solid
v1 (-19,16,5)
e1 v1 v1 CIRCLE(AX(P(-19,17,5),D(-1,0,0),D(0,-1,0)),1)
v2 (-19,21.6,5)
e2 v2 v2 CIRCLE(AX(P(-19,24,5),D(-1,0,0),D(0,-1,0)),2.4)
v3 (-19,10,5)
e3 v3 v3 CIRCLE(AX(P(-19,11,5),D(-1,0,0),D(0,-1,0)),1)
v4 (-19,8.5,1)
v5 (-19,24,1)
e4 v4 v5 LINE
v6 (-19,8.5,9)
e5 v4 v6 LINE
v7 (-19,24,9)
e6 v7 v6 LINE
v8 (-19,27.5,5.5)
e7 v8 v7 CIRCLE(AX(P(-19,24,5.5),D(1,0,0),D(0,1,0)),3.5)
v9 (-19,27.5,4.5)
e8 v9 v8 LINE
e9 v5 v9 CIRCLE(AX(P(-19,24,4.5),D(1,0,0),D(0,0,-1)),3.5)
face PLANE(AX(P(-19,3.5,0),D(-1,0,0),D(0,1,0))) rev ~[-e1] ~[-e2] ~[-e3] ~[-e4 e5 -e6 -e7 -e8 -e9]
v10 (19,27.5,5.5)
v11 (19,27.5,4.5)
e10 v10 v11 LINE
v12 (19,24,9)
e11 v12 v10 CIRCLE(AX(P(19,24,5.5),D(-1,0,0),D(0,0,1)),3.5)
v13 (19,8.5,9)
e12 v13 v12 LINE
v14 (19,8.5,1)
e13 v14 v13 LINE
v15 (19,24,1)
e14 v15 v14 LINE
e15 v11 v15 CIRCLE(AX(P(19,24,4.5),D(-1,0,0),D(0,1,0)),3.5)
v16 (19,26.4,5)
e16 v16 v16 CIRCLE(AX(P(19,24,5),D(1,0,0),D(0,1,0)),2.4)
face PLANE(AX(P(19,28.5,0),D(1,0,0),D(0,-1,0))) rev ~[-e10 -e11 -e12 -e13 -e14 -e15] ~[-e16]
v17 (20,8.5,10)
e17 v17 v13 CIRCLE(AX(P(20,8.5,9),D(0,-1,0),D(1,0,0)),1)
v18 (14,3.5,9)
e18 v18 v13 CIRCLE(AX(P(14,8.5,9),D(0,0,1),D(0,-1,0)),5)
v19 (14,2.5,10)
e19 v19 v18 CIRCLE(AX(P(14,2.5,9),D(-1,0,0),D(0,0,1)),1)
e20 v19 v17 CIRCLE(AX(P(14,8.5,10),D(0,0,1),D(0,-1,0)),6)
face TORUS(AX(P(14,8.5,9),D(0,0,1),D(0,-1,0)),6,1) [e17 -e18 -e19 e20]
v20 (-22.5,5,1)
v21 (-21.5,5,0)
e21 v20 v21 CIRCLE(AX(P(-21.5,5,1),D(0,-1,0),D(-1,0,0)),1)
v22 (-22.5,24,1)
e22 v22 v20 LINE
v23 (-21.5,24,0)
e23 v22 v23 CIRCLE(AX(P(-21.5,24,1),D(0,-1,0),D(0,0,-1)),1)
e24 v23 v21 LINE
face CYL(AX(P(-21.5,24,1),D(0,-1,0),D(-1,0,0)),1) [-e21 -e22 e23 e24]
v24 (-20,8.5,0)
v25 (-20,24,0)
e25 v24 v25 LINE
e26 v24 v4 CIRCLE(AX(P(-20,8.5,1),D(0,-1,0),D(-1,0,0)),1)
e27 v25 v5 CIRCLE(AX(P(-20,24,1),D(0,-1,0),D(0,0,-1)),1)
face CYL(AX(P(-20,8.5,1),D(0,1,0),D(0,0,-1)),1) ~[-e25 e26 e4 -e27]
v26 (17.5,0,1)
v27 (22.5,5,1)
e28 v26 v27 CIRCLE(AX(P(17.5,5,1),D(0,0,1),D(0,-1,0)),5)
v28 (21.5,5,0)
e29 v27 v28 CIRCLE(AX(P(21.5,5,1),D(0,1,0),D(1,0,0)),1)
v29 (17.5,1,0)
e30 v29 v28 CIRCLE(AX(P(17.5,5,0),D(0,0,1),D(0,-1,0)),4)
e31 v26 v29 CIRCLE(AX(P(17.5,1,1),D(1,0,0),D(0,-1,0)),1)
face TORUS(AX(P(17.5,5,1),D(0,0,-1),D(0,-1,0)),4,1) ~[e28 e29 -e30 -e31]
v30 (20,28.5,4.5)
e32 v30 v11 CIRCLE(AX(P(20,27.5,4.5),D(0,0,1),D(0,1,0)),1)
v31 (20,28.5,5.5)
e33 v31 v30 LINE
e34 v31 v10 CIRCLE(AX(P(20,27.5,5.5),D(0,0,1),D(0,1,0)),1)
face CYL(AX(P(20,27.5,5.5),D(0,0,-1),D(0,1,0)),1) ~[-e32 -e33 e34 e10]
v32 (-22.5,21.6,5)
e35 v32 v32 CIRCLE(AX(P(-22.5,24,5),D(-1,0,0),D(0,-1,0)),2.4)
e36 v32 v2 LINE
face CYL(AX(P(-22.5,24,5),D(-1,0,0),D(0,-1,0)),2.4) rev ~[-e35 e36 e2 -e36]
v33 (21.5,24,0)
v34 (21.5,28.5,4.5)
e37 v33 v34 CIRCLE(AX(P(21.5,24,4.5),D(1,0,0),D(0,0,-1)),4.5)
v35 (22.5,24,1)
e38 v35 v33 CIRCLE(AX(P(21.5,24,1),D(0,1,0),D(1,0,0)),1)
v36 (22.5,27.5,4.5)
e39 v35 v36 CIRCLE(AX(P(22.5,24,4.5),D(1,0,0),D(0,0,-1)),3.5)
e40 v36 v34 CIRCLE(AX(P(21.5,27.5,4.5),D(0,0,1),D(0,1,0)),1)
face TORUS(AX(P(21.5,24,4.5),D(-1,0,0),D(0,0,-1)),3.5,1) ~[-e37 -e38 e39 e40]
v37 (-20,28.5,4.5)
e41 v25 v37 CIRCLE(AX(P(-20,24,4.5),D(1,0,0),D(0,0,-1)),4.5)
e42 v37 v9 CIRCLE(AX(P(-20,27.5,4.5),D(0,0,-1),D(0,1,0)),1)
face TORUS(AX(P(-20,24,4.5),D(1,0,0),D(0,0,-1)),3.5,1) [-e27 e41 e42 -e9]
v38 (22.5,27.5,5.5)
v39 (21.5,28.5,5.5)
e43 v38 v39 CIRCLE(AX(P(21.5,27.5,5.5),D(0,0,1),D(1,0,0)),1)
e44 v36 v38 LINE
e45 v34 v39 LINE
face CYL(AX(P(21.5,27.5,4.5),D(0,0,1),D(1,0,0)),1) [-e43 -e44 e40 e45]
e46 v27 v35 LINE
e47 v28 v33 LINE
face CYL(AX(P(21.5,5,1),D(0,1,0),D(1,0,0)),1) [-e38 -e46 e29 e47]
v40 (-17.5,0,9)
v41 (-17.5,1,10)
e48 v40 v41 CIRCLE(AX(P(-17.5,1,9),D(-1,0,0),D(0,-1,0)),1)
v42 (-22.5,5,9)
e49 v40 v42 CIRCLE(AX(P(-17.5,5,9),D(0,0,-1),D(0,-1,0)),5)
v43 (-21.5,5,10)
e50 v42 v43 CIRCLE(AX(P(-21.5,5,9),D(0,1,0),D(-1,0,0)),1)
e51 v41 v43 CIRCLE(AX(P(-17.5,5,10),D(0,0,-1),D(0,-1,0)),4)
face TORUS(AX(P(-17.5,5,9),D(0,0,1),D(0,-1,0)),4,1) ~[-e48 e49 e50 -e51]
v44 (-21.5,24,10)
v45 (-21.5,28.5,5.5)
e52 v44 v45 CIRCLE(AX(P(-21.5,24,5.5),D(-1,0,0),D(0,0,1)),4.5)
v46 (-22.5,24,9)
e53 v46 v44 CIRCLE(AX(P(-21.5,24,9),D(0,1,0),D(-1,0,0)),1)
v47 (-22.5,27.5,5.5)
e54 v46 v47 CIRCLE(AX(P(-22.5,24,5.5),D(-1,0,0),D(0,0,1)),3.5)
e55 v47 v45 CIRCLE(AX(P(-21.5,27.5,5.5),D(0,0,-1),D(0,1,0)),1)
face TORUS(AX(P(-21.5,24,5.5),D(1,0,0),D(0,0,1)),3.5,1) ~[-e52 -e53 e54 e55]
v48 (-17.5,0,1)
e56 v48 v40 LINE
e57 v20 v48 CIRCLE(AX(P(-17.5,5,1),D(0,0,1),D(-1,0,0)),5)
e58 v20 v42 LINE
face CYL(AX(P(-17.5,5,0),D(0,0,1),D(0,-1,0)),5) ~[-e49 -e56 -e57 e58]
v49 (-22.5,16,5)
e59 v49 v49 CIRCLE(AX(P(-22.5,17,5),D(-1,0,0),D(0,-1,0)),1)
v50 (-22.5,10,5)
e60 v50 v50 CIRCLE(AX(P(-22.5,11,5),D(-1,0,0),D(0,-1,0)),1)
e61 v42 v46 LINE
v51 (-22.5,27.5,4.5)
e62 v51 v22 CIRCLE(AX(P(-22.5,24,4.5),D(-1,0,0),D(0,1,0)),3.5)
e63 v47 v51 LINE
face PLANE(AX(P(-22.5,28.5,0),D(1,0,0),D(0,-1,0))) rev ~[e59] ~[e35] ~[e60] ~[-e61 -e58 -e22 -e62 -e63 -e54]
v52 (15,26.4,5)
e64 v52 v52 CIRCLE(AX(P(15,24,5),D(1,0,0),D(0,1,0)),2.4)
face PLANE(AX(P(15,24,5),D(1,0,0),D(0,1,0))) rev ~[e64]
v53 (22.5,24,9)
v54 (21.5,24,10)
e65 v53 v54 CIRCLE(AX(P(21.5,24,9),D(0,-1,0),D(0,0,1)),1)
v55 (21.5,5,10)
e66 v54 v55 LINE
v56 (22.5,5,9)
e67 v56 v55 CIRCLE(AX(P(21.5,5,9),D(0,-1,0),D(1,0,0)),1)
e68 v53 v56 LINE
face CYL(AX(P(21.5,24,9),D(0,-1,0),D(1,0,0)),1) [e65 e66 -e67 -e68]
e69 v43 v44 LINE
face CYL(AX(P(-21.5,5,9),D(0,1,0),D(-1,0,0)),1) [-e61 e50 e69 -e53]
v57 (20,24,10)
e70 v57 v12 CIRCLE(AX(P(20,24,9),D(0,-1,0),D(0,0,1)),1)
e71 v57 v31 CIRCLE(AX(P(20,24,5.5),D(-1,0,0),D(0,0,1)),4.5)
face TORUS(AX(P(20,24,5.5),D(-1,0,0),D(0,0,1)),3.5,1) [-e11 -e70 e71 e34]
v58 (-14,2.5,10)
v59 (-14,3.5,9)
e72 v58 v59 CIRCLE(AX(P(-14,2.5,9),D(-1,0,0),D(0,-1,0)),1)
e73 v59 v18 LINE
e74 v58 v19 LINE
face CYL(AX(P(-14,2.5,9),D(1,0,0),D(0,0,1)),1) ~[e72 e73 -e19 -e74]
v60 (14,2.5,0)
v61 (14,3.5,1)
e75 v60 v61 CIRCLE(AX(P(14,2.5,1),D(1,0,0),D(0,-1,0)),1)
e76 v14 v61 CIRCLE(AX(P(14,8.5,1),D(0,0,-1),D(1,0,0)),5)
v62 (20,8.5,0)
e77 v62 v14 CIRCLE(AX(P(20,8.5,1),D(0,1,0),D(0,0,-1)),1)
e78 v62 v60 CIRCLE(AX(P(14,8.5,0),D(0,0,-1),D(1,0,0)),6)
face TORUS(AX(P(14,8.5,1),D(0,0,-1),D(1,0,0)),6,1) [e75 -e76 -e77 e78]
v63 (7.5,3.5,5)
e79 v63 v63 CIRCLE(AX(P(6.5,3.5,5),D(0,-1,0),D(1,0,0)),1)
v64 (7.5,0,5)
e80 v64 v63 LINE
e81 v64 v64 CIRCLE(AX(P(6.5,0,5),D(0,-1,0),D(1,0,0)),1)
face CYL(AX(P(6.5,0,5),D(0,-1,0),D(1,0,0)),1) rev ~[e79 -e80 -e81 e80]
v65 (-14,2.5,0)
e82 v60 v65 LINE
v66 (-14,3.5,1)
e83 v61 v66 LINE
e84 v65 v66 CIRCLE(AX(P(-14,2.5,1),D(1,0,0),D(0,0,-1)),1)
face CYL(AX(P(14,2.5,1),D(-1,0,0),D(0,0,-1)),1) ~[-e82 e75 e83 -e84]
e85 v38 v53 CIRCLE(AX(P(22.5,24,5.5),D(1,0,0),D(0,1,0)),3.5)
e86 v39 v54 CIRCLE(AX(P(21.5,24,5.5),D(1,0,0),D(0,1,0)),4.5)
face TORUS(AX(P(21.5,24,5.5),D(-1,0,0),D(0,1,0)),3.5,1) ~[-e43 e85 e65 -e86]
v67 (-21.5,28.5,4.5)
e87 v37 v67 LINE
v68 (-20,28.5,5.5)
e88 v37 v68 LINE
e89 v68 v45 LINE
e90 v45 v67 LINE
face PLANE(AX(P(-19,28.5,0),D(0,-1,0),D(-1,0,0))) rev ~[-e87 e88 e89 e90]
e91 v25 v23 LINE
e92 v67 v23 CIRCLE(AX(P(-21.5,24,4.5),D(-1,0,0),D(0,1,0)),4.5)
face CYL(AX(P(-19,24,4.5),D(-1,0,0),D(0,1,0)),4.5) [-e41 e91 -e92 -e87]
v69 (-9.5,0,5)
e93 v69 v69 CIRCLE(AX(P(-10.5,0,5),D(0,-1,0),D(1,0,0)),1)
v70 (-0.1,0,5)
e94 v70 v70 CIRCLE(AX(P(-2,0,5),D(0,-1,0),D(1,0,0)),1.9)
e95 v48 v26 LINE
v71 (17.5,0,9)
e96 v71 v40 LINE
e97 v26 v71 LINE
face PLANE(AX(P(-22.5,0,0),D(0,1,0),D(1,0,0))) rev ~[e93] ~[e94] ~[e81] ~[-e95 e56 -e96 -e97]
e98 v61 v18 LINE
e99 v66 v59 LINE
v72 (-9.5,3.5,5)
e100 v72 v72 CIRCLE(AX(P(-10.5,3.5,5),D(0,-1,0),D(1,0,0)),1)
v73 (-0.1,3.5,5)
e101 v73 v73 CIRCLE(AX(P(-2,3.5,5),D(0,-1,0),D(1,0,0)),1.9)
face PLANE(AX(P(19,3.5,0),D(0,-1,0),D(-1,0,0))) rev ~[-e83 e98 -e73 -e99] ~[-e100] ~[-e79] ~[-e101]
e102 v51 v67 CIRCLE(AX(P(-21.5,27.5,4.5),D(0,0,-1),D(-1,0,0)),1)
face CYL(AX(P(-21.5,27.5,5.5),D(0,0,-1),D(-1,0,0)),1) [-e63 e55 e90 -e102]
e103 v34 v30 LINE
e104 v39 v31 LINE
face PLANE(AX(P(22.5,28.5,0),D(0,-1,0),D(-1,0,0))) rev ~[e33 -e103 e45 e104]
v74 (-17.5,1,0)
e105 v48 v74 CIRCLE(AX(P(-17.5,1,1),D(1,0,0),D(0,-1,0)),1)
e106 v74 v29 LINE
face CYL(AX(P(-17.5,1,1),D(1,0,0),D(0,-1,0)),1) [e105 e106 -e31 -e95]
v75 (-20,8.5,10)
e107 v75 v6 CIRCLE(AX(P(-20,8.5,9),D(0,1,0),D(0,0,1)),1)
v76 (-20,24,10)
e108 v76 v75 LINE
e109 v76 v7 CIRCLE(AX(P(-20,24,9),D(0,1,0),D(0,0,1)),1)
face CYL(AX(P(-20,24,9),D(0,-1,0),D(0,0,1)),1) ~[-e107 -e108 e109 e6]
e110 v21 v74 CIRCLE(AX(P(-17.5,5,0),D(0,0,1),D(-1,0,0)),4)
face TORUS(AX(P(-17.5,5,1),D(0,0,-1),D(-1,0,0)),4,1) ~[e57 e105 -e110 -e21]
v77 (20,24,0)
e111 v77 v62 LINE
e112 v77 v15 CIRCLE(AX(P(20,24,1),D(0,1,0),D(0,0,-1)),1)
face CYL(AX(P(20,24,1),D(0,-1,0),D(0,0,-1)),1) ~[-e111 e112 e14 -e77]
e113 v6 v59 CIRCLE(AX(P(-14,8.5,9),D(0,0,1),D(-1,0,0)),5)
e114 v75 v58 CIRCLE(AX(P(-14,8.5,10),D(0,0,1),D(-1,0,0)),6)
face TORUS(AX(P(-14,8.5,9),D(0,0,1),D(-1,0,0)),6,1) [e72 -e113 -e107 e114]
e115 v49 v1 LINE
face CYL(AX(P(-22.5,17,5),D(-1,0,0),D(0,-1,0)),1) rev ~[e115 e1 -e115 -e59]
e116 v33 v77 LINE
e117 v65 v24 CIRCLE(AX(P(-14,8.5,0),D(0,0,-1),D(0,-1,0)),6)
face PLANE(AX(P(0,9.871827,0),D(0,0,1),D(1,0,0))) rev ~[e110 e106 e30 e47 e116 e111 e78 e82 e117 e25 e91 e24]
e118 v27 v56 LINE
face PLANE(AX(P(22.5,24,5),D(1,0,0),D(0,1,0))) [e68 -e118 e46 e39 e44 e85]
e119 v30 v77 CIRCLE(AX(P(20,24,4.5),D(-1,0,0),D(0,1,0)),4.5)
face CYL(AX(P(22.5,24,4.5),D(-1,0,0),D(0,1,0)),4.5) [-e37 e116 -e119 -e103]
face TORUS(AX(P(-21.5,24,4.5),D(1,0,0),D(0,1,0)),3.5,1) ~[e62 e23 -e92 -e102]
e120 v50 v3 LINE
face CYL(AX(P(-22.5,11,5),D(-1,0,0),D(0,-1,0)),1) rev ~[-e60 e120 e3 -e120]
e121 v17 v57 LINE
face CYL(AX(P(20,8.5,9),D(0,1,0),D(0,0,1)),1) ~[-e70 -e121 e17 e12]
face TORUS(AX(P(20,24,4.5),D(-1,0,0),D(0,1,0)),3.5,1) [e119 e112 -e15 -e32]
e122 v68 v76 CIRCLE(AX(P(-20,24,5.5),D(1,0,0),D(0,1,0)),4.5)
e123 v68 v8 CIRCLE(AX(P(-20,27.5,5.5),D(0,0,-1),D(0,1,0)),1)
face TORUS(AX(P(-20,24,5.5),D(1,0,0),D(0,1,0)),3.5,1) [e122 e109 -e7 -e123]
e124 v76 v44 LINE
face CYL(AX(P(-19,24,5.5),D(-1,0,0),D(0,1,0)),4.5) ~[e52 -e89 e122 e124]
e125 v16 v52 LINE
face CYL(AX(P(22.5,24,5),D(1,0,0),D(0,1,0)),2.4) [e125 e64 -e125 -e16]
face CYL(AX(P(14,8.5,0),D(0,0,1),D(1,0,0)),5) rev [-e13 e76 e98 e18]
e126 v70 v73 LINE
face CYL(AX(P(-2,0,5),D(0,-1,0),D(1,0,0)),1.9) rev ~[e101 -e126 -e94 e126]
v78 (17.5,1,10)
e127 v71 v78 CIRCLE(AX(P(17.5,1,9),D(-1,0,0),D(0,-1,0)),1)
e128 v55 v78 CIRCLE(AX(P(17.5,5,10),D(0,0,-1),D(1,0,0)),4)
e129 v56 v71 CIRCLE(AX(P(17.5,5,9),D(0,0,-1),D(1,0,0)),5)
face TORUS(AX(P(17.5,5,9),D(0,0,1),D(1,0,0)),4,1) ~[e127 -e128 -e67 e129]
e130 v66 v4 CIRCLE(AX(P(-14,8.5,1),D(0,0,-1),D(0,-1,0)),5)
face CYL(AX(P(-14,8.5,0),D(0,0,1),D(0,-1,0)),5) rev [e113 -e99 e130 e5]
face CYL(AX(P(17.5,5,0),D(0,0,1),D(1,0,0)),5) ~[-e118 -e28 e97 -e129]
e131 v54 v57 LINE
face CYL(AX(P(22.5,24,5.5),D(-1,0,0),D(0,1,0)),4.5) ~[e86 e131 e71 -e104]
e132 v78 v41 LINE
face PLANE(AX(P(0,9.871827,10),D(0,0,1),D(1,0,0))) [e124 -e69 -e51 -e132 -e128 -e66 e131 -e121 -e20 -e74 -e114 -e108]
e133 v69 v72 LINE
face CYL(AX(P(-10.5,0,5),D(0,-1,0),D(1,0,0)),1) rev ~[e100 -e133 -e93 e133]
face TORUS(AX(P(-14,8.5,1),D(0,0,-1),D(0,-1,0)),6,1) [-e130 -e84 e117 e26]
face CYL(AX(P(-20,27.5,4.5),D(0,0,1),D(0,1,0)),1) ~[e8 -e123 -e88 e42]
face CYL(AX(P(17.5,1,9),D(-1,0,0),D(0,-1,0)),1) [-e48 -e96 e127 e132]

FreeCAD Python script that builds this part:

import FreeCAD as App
import Part
import Sketcher
from FreeCAD import Vector
Q = App.Units.Quantity


def edges_at(feature, points):
    """Names of the edges that pass closest to the given points."""
    edges = feature.Shape.Edges
    near = lambda p: min(range(len(edges)), key=lambda i: edges[i].distToShape(Part.Vertex(*p))[0])
    return sorted({f"Edge{near(p) + 1}" for p in points})


def add_polygon(sketch, points):
    """Adds a closed chain of lines whose ends are joined by coincident constraints."""
    first, n = sketch.GeometryCount, len(points)
    for a, b in zip(points, points[1:] + points[:1]):
        sketch.addGeometry(Part.LineSegment(App.Vector(*a, 0), App.Vector(*b, 0)), False)
    for i in range(n):
        sketch.addConstraint(Sketcher.Constraint("Coincident", first + i, 2, first + (i + 1) % n, 1))

doc = App.newDocument("Part")
body = doc.addObject("PartDesign::Body", "Body")

sketch1 = body.newObject("Sketcher::SketchObject", "Sketch")
sketch1.AttachmentSupport = (doc.getObject("XY_Plane"), [""])
sketch1.MapMode = "FlatFace"
add_polygon(sketch1, [(-22.5, 0), (22.5, 0), (22.5, 28.5), (19, 28.5), (19, 3.5), (-19, 3.5), (-19, 28.5), (-22.5, 28.5)])
sketch1.addConstraint(Sketcher.Constraint("Horizontal", 0))
sketch1.addConstraint(Sketcher.Constraint("Vertical", 1))
sketch1.addConstraint(Sketcher.Constraint("Horizontal", 2))
sketch1.addConstraint(Sketcher.Constraint("Vertical", 3))
sketch1.addConstraint(Sketcher.Constraint("Horizontal", 4))
sketch1.addConstraint(Sketcher.Constraint("Vertical", 5))
sketch1.addConstraint(Sketcher.Constraint("Horizontal", 6))
sketch1.addConstraint(Sketcher.Constraint("Vertical", 7))
sketch1.addConstraint(Sketcher.Constraint("Symmetric", 0, 2, 7, 2, -1, 1))
sketch1.addConstraint(Sketcher.Constraint("Symmetric", 2, 2, 5, 2, -2))
sketch1.addConstraint(Sketcher.Constraint("DistanceX", 0, 1, 0, 2, Q("45 mm")))
sketch1.addConstraint(Sketcher.Constraint("DistanceX", 4, 2, 4, 1, Q("38 mm")))
sketch1.addConstraint(Sketcher.Constraint("DistanceY", 3, 2, 3, 1, Q("25 mm")))
sketch1.addConstraint(Sketcher.Constraint("DistanceY", 1, 1, 1, 2, Q("28.5 mm")))
pad1 = body.newObject("PartDesign::Pad", "Pad")
pad1.Profile = sketch1
pad1.Length = 10
doc.recompute()

fillet = body.newObject("PartDesign::Fillet", "Fillet")
fillet.Base = (pad1, edges_at(pad1, [
    (-20.75, 28.5, 10),
    (-20.75, 28.5, 0),
    (20.75, 28.5, 10),
    (20.75, 28.5, 0),
]))
fillet.Radius = 4.5

sketch2 = body.newObject("Sketcher::SketchObject", "Sketch001")
sketch2.AttachmentSupport = (doc.getObject("YZ_Plane"), [""])
sketch2.MapMode = "FlatFace"
sketch2.AttachmentOffset = App.Placement(Vector(0, 0, -22.5), App.Rotation())
sketch2.addGeometry(Part.Circle(Vector(17, 5, 0), Vector(0, 0, 1), 1), False)
sketch2.addGeometry(Part.Circle(Vector(11, 5, 0), Vector(0, 0, 1), 1), False)
sketch2.addConstraint(Sketcher.Constraint("Equal", 0, 1))
sketch2.addConstraint(Sketcher.Constraint("Horizontal", 0, 3, 1, 3))
sketch2.addConstraint(Sketcher.Constraint("Diameter", 0, Q("2 mm")))
sketch2.addConstraint(Sketcher.Constraint("DistanceX", -1, 1, 0, 3, Q("17 mm")))
sketch2.addConstraint(Sketcher.Constraint("DistanceY", -1, 1, 0, 3, Q("5 mm")))
sketch2.addConstraint(Sketcher.Constraint("DistanceX", -1, 1, 1, 3, Q("11 mm")))
pocket1 = body.newObject("PartDesign::Pocket", "Pocket")
pocket1.Profile = sketch2
pocket1.Length = 4
pocket1.Reversed = True

sketch3 = body.newObject("Sketcher::SketchObject", "Sketch002")
sketch3.AttachmentSupport = (doc.getObject("YZ_Plane"), [""])
sketch3.MapMode = "FlatFace"
sketch3.AttachmentOffset = App.Placement(Vector(0, 0, 22.5), App.Rotation())
sketch3.addGeometry(Part.Circle(Vector(24, 5, 0), Vector(0, 0, 1), 2.4), False)
sketch3.addConstraint(Sketcher.Constraint("Diameter", 0, Q("4.8 mm")))
sketch3.addConstraint(Sketcher.Constraint("DistanceX", -1, 1, 0, 3, Q("24 mm")))
sketch3.addConstraint(Sketcher.Constraint("DistanceY", -1, 1, 0, 3, Q("5 mm")))
pad2 = body.newObject("PartDesign::Pad", "Pad001")
pad2.Profile = sketch3
pad2.Length = 7.5
pad2.Reversed = True

sketch4 = body.newObject("Sketcher::SketchObject", "Sketch003")
sketch4.AttachmentSupport = (doc.getObject("YZ_Plane"), [""])
sketch4.MapMode = "FlatFace"
sketch4.AttachmentOffset = App.Placement(Vector(0, 0, -22.5), App.Rotation())
sketch4.addGeometry(Part.Circle(Vector(24, 5, 0), Vector(0, 0, 1), 2.4), False)
sketch4.addConstraint(Sketcher.Constraint("Diameter", 0, Q("4.8 mm")))
sketch4.addConstraint(Sketcher.Constraint("DistanceX", -1, 1, 0, 3, Q("24 mm")))
sketch4.addConstraint(Sketcher.Constraint("DistanceY", -1, 1, 0, 3, Q("5 mm")))
pocket2 = body.newObject("PartDesign::Pocket", "Pocket001")
pocket2.Profile = sketch4
pocket2.Length = 25
pocket2.Reversed = True
pocket3 = body.newObject("PartDesign::Pocket", "Pocket002")
pocket3.Profile = sketch4
pocket3.Length = 25
pocket3.Reversed = True
doc.recompute()

fillet2 = body.newObject("PartDesign::Fillet", "Fillet001")
fillet2.Base = (pocket3, edges_at(pocket3, [
    (-22.5, 0, 5),
    (22.5, 0, 5),
    (-19, 3.5, 5),
    (19, 3.5, 5),
]))
fillet2.Radius = 5

sketch5 = body.newObject("Sketcher::SketchObject", "Sketch004")
sketch5.AttachmentSupport = (doc.getObject("XZ_Plane"), [""])
sketch5.MapMode = "FlatFace"
sketch5.addGeometry(Part.Circle(Vector(-10.5, 5, 0), Vector(0, 0, 1), 1), False)
sketch5.addGeometry(Part.Circle(Vector(-2, 5, 0), Vector(0, 0, 1), 1.9), False)
sketch5.addGeometry(Part.Circle(Vector(6.5, 5, 0), Vector(0, 0, 1), 1), False)
sketch5.addConstraint(Sketcher.Constraint("Equal", 0, 2))
sketch5.addConstraint(Sketcher.Constraint("Horizontal", 0, 3, 1, 3))
sketch5.addConstraint(Sketcher.Constraint("Horizontal", 1, 3, 2, 3))
sketch5.addConstraint(Sketcher.Constraint("Diameter", 0, Q("2 mm")))
sketch5.addConstraint(Sketcher.Constraint("Diameter", 1, Q("3.8 mm")))
sketch5.addConstraint(Sketcher.Constraint("DistanceY", -1, 1, 0, 3, Q("5 mm")))
sketch5.addConstraint(Sketcher.Constraint("DistanceX", 1, 3, -1, 1, Q("2 mm")))
sketch5.addConstraint(Sketcher.Constraint("DistanceX", 0, 3, 2, 3, Q("17 mm")))
sketch5.addConstraint(Sketcher.Constraint("DistanceX", 0, 3, -1, 1, Q("10.5 mm")))
pocket4 = body.newObject("PartDesign::Pocket", "Pocket003")
pocket4.Profile = sketch5
pocket4.Length = 25
pocket5 = body.newObject("PartDesign::Pocket", "Pocket004")
pocket5.Profile = sketch5
pocket5.Length = 25
doc.recompute()

fillet3 = body.newObject("PartDesign::Fillet", "Fillet002")
fillet3.Base = (pocket5, edges_at(pocket5, [
    (22.5, 14.5, 0),
    (21.036, 1.464, 0),
    (20.75, 24, 0),
    (0, 0, 0),
    (19, 16.25, 0),
    (-21.036, 1.464, 0),
    (17.536, 4.964, 0),
    (-22.5, 14.5, 0),
    (0, 3.5, 0),
    (-20.75, 24, 0),
    (-17.536, 4.964, 0),
    (-19, 16.25, 0),
]))
fillet3.Radius = 1

doc.recompute()
